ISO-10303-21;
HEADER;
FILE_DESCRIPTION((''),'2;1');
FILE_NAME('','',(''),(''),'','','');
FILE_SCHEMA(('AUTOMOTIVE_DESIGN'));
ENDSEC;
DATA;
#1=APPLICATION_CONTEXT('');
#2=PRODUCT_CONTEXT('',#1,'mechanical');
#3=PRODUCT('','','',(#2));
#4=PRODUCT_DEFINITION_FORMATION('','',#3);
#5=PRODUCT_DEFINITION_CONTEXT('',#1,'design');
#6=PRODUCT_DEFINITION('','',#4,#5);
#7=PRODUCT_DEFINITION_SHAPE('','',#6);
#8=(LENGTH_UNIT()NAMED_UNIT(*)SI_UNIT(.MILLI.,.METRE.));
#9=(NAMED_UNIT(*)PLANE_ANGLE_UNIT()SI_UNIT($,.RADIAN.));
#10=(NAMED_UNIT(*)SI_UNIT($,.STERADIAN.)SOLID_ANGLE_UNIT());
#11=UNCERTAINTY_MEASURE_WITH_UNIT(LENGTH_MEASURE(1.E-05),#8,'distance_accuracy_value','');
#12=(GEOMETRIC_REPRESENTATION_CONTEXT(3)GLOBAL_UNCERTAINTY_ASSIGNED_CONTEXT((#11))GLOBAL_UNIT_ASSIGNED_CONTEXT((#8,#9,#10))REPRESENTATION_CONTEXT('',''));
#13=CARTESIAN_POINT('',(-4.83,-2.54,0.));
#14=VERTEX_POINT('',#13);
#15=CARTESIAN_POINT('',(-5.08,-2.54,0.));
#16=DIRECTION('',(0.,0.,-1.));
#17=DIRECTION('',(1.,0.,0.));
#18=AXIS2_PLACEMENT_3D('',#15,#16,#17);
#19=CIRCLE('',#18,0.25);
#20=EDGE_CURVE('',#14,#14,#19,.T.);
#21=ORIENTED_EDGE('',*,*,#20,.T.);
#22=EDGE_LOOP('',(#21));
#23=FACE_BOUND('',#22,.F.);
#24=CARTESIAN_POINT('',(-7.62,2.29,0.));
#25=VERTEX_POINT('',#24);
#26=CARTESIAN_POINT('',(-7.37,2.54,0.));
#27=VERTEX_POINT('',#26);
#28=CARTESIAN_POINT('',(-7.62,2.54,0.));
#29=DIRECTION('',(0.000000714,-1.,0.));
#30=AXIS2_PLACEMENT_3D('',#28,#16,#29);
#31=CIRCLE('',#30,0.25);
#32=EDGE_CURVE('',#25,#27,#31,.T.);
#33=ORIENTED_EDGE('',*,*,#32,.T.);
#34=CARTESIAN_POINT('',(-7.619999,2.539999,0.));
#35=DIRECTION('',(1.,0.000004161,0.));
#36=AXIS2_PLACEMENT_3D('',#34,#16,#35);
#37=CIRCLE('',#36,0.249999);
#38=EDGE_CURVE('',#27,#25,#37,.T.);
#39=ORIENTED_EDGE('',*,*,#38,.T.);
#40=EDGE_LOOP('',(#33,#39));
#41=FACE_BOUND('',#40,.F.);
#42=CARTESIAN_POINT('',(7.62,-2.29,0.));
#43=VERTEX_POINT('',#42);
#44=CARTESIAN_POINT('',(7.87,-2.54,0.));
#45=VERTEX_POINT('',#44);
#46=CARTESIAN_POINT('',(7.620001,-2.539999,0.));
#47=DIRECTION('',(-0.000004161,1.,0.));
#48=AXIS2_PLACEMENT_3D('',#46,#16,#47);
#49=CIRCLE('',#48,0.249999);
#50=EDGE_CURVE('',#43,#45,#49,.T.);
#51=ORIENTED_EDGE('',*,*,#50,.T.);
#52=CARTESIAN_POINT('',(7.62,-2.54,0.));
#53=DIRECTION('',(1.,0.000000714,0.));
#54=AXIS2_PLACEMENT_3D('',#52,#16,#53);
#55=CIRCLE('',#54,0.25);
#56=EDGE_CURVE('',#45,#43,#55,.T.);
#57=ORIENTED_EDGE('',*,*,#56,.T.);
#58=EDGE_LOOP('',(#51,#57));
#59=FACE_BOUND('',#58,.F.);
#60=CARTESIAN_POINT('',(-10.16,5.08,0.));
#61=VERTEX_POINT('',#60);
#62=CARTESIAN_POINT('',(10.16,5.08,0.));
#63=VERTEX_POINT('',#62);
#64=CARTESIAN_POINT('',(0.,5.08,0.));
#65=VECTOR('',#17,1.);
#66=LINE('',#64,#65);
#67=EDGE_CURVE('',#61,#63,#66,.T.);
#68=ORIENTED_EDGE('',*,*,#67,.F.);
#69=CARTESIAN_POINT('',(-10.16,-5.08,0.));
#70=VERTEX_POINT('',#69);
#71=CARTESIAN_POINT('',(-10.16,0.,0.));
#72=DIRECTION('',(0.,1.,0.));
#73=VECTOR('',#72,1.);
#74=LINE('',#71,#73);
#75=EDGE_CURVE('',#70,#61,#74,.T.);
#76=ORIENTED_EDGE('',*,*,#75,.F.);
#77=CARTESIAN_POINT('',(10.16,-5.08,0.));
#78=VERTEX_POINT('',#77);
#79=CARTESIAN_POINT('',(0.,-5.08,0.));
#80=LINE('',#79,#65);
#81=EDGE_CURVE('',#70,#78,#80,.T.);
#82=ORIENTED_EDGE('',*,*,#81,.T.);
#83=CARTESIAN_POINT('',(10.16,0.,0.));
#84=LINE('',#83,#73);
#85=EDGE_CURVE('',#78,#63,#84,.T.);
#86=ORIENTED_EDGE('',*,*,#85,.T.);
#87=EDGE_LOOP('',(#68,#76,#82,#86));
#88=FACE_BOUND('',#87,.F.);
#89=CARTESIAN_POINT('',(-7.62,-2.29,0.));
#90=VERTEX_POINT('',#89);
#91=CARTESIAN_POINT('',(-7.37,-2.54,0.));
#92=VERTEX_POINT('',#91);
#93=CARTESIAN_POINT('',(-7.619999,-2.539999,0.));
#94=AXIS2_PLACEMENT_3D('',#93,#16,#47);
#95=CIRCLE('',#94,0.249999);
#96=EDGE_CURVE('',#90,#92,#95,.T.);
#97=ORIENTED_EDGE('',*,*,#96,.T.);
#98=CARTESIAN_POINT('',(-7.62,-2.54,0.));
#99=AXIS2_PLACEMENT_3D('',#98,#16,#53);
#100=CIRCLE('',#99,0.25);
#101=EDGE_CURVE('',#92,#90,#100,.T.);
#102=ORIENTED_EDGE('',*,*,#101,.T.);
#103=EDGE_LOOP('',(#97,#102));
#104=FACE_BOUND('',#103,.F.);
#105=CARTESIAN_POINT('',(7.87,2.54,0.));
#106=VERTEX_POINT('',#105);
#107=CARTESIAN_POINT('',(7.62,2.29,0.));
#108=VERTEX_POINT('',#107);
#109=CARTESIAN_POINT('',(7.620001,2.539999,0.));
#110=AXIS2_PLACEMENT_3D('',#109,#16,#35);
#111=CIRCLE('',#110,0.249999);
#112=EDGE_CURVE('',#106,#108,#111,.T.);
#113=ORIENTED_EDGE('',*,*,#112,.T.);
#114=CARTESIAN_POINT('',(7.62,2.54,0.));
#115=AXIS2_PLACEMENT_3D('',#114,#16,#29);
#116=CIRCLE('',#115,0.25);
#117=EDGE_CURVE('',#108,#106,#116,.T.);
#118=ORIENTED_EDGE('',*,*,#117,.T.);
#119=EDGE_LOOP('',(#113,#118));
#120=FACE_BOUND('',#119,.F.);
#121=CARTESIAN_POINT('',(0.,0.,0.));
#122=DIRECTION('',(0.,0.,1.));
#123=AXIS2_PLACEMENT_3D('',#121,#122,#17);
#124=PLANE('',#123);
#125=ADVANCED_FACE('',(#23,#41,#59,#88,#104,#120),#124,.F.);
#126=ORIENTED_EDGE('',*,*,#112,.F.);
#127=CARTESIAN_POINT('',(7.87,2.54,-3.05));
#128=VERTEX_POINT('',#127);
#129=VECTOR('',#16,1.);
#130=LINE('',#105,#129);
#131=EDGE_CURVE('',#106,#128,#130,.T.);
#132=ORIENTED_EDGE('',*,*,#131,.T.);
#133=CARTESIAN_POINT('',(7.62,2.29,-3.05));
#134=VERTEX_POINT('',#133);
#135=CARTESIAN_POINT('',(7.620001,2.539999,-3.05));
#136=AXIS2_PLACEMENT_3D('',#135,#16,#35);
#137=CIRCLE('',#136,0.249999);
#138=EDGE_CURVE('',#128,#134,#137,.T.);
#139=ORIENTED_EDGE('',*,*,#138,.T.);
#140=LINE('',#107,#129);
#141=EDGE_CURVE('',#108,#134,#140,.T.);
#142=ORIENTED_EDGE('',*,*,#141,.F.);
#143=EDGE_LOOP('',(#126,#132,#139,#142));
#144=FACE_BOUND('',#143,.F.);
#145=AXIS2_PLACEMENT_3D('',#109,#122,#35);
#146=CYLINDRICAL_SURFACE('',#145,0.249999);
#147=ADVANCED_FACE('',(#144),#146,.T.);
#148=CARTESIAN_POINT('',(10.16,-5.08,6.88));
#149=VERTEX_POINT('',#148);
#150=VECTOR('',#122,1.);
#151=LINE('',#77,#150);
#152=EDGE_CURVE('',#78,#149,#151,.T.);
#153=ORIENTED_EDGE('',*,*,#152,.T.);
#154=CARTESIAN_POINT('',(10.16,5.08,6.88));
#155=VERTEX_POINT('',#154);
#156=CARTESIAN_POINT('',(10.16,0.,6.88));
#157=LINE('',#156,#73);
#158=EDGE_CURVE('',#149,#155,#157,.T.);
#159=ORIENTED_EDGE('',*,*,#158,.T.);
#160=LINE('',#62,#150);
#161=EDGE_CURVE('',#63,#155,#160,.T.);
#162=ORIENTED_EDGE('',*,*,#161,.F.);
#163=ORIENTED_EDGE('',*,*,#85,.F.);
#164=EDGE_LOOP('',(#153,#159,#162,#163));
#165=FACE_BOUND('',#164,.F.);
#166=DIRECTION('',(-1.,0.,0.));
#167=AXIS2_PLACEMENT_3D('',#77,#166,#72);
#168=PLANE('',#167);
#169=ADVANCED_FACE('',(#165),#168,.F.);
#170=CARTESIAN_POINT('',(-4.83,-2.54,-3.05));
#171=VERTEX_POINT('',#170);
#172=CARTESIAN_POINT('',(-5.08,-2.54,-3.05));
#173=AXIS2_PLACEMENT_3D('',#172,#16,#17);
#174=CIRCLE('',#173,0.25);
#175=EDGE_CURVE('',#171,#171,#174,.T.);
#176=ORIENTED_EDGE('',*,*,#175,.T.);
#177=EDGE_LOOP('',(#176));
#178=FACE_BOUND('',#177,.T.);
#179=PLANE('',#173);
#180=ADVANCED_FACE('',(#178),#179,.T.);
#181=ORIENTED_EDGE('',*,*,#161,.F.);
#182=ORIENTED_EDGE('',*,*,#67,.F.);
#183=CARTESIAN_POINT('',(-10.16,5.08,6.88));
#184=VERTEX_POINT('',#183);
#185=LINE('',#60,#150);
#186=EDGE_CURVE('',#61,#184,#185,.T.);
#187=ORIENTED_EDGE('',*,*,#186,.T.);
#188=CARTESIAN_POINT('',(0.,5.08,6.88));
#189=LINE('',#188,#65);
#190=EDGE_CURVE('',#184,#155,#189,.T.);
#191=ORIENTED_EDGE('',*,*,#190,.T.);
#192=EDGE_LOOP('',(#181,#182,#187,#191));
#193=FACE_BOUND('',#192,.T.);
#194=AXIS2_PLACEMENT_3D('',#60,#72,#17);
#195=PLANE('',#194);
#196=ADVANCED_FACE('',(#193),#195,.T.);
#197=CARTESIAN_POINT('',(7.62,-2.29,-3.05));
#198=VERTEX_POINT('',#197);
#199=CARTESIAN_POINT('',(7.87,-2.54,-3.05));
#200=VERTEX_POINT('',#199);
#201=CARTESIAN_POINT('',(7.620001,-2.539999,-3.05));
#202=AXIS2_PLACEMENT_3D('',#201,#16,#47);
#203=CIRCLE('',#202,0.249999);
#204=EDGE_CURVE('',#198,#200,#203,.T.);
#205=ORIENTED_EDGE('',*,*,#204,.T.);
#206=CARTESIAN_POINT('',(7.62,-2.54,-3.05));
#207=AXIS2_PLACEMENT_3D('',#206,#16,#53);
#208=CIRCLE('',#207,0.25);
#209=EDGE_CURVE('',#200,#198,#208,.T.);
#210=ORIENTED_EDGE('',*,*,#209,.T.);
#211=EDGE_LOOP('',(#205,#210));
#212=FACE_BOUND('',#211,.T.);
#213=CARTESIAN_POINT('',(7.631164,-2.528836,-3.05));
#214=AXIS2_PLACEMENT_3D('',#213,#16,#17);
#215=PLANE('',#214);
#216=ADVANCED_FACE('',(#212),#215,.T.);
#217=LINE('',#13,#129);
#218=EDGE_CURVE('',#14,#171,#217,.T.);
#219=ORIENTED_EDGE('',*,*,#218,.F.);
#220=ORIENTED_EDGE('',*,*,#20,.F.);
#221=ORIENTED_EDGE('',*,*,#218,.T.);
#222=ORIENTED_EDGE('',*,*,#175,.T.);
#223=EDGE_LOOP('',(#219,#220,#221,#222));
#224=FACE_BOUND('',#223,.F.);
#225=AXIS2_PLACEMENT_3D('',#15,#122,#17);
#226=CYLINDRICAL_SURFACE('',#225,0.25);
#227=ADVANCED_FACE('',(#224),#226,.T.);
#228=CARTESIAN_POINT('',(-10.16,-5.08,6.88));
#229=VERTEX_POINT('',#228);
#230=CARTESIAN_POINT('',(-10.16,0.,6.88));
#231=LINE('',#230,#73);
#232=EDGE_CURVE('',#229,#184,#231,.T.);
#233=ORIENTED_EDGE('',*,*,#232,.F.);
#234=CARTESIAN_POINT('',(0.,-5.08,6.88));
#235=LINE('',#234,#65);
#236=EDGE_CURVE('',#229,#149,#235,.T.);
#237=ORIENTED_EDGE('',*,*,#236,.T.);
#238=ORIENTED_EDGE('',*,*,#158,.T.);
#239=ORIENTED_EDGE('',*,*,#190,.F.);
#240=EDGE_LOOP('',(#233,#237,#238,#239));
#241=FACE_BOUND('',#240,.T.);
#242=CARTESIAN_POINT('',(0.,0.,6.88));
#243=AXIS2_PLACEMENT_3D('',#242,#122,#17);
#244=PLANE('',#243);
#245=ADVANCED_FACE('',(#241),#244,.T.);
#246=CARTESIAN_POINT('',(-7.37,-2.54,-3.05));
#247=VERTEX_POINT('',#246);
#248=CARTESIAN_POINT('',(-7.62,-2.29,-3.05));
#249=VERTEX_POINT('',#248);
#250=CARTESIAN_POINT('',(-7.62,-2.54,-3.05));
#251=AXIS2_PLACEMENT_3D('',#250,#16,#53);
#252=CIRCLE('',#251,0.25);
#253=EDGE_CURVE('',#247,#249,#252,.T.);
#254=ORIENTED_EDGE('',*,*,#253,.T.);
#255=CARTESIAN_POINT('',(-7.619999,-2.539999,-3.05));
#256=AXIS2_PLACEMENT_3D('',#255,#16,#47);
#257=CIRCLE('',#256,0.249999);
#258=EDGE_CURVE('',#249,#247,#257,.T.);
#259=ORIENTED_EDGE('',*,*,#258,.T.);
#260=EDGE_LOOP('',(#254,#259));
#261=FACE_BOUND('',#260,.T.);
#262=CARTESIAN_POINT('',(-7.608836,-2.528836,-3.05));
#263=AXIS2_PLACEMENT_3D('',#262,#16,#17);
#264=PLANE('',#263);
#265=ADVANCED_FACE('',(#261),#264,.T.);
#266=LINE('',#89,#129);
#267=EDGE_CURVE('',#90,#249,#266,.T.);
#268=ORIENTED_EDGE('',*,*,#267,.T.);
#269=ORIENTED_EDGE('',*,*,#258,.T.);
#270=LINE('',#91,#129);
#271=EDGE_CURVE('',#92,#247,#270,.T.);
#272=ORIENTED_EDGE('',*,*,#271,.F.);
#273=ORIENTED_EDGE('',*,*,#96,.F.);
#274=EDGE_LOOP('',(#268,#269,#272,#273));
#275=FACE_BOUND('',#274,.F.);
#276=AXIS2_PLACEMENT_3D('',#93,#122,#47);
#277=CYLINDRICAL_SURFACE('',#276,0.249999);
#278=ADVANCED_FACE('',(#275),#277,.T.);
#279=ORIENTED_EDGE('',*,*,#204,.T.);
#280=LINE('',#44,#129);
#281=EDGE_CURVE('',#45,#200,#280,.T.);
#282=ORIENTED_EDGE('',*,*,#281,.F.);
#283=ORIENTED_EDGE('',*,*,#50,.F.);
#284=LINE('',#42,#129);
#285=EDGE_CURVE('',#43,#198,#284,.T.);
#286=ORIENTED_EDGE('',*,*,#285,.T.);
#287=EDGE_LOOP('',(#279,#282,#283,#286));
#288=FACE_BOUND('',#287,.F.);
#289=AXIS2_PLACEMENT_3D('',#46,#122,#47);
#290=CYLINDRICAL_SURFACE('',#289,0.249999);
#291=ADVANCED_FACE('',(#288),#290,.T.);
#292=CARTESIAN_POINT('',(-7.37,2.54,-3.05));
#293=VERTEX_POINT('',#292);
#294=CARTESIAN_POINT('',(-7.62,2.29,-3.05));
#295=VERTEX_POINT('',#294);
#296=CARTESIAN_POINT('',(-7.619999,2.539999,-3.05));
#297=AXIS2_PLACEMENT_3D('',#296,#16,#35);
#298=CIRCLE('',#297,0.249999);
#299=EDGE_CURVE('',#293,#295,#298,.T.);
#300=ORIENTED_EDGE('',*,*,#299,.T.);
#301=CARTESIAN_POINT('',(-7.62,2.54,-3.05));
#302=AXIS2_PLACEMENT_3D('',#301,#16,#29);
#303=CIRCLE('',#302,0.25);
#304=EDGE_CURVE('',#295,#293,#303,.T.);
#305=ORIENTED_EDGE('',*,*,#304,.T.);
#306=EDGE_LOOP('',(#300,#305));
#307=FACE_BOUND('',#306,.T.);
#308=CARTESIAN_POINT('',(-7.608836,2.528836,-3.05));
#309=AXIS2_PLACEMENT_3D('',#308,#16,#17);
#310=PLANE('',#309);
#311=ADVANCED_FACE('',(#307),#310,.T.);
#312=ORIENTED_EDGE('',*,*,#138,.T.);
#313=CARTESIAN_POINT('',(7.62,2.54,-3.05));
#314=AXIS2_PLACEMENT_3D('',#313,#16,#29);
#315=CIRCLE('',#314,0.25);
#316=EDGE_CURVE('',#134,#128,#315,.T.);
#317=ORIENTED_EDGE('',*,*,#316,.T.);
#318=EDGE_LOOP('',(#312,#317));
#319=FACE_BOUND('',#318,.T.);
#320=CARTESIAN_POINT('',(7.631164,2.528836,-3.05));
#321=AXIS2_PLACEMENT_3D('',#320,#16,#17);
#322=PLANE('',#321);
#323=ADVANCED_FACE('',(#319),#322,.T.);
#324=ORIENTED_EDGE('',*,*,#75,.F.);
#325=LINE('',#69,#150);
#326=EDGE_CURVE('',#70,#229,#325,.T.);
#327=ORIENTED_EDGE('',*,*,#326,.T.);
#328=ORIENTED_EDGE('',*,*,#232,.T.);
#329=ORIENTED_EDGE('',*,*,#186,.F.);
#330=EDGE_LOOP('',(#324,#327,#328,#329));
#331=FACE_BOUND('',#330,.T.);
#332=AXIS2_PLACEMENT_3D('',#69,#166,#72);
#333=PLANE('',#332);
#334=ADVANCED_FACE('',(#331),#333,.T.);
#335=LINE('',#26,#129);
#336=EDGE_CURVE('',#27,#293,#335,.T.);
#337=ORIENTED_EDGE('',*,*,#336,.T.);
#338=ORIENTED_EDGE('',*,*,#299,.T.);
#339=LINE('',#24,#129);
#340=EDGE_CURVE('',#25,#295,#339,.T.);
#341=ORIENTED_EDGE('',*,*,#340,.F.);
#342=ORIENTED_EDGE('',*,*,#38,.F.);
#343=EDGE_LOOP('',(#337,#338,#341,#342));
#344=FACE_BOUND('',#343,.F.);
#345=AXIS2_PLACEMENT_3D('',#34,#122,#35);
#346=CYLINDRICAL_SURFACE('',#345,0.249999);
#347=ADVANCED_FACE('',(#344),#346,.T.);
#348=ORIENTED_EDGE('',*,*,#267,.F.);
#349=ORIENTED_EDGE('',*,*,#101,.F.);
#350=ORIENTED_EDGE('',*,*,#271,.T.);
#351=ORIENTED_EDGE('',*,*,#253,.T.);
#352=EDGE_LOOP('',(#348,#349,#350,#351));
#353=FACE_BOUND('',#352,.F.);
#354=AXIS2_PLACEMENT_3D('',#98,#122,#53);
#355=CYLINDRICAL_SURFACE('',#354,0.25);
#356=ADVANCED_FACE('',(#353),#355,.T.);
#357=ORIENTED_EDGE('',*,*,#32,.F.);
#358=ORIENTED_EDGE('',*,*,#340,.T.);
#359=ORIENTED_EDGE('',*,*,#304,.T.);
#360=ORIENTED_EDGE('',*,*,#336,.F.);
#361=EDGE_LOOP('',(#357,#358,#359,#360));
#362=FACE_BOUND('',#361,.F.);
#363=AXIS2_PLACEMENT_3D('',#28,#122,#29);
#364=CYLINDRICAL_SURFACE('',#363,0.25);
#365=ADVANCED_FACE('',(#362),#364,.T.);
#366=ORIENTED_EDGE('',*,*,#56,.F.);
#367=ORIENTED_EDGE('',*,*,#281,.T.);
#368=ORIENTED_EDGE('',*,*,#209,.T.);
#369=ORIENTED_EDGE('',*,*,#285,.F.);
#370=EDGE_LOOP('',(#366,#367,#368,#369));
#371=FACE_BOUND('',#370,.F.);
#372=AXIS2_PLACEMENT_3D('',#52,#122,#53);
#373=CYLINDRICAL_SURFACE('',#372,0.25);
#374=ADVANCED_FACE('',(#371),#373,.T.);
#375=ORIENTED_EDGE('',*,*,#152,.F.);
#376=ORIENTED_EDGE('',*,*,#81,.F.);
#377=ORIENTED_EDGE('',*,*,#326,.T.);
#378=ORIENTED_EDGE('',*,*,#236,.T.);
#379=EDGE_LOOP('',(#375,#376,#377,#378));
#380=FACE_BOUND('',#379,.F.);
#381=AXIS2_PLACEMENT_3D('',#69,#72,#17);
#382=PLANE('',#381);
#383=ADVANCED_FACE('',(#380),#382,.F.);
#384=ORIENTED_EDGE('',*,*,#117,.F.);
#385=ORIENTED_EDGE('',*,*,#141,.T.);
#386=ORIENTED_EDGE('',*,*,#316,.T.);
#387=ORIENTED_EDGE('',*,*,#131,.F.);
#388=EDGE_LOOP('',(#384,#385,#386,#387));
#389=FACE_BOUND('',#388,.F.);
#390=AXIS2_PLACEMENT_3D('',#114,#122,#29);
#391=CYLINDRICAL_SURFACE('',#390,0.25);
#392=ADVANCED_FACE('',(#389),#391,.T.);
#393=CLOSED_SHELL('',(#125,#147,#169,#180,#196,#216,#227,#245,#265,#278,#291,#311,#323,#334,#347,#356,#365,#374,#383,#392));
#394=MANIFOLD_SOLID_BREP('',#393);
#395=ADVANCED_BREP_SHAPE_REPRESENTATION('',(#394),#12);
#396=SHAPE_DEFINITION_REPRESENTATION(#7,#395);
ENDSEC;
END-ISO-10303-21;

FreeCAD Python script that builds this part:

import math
import FreeCAD as App
import Part
import Sketcher
from FreeCAD import Vector
Q = App.Units.Quantity


def add_polygon(sketch, points):
    """Adds a closed chain of lines whose ends are joined by coincident constraints."""
    first, n = sketch.GeometryCount, len(points)
    for a, b in zip(points, points[1:] + points[:1]):
        sketch.addGeometry(Part.LineSegment(App.Vector(*a, 0), App.Vector(*b, 0)), False)
    for i in range(n):
        sketch.addConstraint(Sketcher.Constraint("Coincident", first + i, 2, first + (i + 1) % n, 1))

doc = App.newDocument("Part")
body = doc.addObject("PartDesign::Body", "Body")

sketch1 = body.newObject("Sketcher::SketchObject", "Sketch")
sketch1.AttachmentSupport = (doc.getObject("XY_Plane"), [""])
sketch1.MapMode = "FlatFace"
add_polygon(sketch1, [(-10, 5), (-10, -5), (10, -5), (10, 5)])
sketch1.addConstraint(Sketcher.Constraint("Vertical", 0))
sketch1.addConstraint(Sketcher.Constraint("Horizontal", 1))
sketch1.addConstraint(Sketcher.Constraint("Vertical", 2))
sketch1.addConstraint(Sketcher.Constraint("Horizontal", 3))
sketch1.addConstraint(Sketcher.Constraint("Symmetric", 0, 2, 2, 2, -1, 1))
sketch1.addConstraint(Sketcher.Constraint("DistanceX", 1, 1, 1, 2, Q("0.8 in")))
sketch1.addConstraint(Sketcher.Constraint("DistanceY", 0, 2, 0, 1, Q("0.4 in")))
pad1 = body.newObject("PartDesign::Pad", "Pad")
pad1.Profile = sketch1
pad1.Length = 6.88

sketch2 = body.newObject("Sketcher::SketchObject", "Sketch001")
sketch2.AttachmentSupport = (doc.getObject("XY_Plane"), [""])
sketch2.MapMode = "FlatFace"
sketch2.addGeometry(Part.ArcOfCircle(Part.Circle(Vector(-7.62, -2.54, 0), Vector(0, 0, 1), 0.25), math.radians(0), math.radians(90)), False)
sketch2.addGeometry(Part.ArcOfCircle(Part.Circle(Vector(-7.62, -2.54, 0), Vector(0, 0, 1), 0.25), math.radians(90), math.radians(360)), False)
sketch2.addGeometry(Part.ArcOfCircle(Part.Circle(Vector(-7.62, 2.54, 0), Vector(0, 0, 1), 0.25), math.radians(-90), math.radians(0)), False)
sketch2.addGeometry(Part.ArcOfCircle(Part.Circle(Vector(-7.62, 2.54, 0), Vector(0, 0, 1), 0.25), math.radians(0), math.radians(270)), False)
sketch2.addGeometry(Part.Circle(Vector(-5.08, -2.54, 0), Vector(0, 0, 1), 0.25), False)
sketch2.addGeometry(Part.ArcOfCircle(Part.Circle(Vector(7.62, -2.54, 0), Vector(0, 0, 1), 0.25), math.radians(0), math.radians(90)), False)
sketch2.addGeometry(Part.ArcOfCircle(Part.Circle(Vector(7.62, -2.54, 0), Vector(0, 0, 1), 0.25), math.radians(90), math.radians(360)), False)
sketch2.addGeometry(Part.ArcOfCircle(Part.Circle(Vector(7.62, 2.54, 0), Vector(0, 0, 1), 0.25), math.radians(-90), math.radians(0)), False)
sketch2.addGeometry(Part.ArcOfCircle(Part.Circle(Vector(7.62, 2.54, 0), Vector(0, 0, 1), 0.25), math.radians(0), math.radians(270)), False)
sketch2.addConstraint(Sketcher.Constraint("Coincident", 0, 1, 1, 2))
sketch2.addConstraint(Sketcher.Constraint("Coincident", 1, 1, 0, 2))
sketch2.addConstraint(Sketcher.Constraint("Coincident", 2, 1, 3, 2))
sketch2.addConstraint(Sketcher.Constraint("Coincident", 3, 1, 2, 2))
sketch2.addConstraint(Sketcher.Constraint("Coincident", 5, 1, 6, 2))
sketch2.addConstraint(Sketcher.Constraint("Coincident", 6, 1, 5, 2))
sketch2.addConstraint(Sketcher.Constraint("Coincident", 7, 1, 8, 2))
sketch2.addConstraint(Sketcher.Constraint("Coincident", 8, 1, 7, 2))
sketch2.addConstraint(Sketcher.Constraint("Equal", 0, 1))
sketch2.addConstraint(Sketcher.Constraint("Equal", 1, 2))
sketch2.addConstraint(Sketcher.Constraint("Equal", 2, 3))
sketch2.addConstraint(Sketcher.Constraint("Equal", 3, 4))
sketch2.addConstraint(Sketcher.Constraint("Equal", 4, 5))
sketch2.addConstraint(Sketcher.Constraint("Equal", 5, 6))
sketch2.addConstraint(Sketcher.Constraint("Equal", 6, 7))
sketch2.addConstraint(Sketcher.Constraint("Equal", 7, 8))
sketch2.addConstraint(Sketcher.Constraint("Symmetric", 2, 3, 5, 3, -1, 1))
sketch2.addConstraint(Sketcher.Constraint("Symmetric", 0, 3, 7, 3, -1, 1))
sketch2.addConstraint(Sketcher.Constraint("Symmetric", 0, 3, 5, 3, -2))
sketch2.addConstraint(Sketcher.Constraint("Horizontal", 1, 3, 4, 3))
sketch2.addConstraint(Sketcher.Constraint("Horizontal", 6, 3, 0, 1))
sketch2.addConstraint(Sketcher.Constraint("Horizontal", 8, 3, 3, 1))
sketch2.addConstraint(Sketcher.Constraint("Horizontal", 0, 1, 5, 1))
sketch2.addConstraint(Sketcher.Constraint("Horizontal", 3, 1, 8, 1))
sketch2.addConstraint(Sketcher.Constraint("Vertical", 3, 3, 1, 1))
sketch2.addConstraint(Sketcher.Constraint("Vertical", 1, 1, 2, 1))
sketch2.addConstraint(Sketcher.Constraint("Vertical", 8, 3, 6, 1))
sketch2.addConstraint(Sketcher.Constraint("Vertical", 6, 1, 7, 1))
sketch2.addConstraint(Sketcher.Constraint("DistanceX", 0, 3, -1, 1, Q("0.3 in")))
sketch2.addConstraint(Sketcher.Constraint("DistanceY", 0, 3, -1, 1, Q("0.1 in")))
sketch2.addConstraint(Sketcher.Constraint("DistanceX", 4, 3, -1, 1, Q("0.2 in")))
sketch2.addConstraint(Sketcher.Constraint("Diameter", 4, 0.5))
pad2 = body.newObject("PartDesign::Pad", "Pad001")
pad2.Profile = sketch2
pad2.Length = 3.05
pad2.Reversed = True

doc.recompute()
